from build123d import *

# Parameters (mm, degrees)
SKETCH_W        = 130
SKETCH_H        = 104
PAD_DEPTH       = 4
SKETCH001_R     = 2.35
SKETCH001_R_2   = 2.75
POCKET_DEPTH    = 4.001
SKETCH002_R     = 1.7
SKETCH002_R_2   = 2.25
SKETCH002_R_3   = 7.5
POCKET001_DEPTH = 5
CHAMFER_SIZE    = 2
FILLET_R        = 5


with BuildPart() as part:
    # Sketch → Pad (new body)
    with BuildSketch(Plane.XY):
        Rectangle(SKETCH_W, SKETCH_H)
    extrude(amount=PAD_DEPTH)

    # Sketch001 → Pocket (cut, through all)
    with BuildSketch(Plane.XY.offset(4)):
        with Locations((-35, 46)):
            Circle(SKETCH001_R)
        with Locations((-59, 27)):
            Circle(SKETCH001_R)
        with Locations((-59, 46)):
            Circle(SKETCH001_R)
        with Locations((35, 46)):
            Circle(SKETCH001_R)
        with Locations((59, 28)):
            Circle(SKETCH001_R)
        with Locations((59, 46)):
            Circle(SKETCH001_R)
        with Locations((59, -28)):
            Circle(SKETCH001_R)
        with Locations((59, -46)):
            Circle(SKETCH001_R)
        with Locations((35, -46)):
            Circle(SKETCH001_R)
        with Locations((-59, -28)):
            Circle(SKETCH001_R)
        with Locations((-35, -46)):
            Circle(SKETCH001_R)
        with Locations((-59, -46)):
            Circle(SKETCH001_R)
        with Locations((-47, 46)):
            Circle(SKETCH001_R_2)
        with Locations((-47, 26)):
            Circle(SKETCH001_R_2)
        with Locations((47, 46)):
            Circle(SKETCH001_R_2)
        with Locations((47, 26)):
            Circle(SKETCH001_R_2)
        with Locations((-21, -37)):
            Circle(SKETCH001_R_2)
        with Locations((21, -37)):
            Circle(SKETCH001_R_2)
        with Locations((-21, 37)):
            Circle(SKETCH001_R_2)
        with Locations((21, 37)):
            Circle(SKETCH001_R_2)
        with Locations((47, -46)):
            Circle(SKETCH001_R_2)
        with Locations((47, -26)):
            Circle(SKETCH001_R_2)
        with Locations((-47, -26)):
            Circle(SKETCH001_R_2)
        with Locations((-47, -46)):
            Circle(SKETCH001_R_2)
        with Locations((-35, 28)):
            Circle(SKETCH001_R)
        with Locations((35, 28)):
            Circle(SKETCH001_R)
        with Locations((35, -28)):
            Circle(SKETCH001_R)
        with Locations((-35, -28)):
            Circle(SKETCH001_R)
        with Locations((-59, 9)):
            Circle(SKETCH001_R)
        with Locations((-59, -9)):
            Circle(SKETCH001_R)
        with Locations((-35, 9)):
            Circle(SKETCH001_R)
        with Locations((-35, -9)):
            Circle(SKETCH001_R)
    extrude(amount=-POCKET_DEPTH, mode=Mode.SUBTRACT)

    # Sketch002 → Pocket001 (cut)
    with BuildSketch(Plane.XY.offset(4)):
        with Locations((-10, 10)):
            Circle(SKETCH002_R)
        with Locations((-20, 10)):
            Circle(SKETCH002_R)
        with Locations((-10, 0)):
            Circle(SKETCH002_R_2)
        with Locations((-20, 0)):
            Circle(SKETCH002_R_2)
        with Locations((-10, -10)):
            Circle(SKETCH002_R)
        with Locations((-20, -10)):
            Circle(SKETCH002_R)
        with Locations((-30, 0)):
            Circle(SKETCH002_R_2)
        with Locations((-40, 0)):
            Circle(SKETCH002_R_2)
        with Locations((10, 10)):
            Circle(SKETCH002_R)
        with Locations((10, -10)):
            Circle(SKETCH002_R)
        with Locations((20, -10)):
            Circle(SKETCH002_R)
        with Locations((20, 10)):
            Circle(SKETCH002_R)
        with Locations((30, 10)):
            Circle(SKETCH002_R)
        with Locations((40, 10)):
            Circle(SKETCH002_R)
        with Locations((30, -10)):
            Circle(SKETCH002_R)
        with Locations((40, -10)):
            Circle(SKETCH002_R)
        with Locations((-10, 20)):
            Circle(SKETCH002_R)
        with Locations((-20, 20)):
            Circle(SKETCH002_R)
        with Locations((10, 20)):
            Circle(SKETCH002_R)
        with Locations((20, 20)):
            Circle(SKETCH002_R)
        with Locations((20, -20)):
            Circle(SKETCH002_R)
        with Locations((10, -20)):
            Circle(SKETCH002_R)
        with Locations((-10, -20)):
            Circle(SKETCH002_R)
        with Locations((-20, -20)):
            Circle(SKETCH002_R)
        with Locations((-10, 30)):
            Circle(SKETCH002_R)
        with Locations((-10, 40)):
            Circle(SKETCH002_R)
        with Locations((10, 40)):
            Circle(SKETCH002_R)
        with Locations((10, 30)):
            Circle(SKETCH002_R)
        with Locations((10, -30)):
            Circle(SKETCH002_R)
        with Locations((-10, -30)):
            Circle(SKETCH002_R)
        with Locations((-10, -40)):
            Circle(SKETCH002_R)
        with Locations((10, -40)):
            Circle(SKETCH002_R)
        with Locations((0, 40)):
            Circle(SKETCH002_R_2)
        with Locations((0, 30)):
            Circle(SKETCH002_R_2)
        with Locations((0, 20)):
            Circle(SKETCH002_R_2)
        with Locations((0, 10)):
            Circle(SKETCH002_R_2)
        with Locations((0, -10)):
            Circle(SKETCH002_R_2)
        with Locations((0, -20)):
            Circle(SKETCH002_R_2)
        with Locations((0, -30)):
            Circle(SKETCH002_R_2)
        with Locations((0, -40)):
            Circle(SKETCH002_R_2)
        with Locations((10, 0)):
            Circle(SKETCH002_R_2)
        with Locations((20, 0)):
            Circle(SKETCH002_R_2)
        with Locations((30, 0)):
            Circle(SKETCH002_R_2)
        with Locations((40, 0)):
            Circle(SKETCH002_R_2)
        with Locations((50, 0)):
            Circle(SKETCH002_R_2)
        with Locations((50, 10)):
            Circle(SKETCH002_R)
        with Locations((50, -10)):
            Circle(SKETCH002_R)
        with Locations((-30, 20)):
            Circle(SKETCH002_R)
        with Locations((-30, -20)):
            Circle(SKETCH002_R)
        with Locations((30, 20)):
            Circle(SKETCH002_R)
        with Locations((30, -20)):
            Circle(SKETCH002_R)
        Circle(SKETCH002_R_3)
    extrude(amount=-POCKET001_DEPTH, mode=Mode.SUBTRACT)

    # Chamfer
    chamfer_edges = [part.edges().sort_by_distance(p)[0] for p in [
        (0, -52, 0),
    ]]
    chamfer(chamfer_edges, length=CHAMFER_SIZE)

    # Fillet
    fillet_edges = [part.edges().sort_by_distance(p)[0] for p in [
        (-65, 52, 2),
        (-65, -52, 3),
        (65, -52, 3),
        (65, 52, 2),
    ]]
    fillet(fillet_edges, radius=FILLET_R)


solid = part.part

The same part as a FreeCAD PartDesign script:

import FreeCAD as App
import Part
import Sketcher
from FreeCAD import Vector
Q = App.Units.Quantity


def edges_at(feature, points):
    """Names of the edges that pass closest to the given points."""
    edges = feature.Shape.Edges
    near = lambda p: min(range(len(edges)), key=lambda i: edges[i].distToShape(Part.Vertex(*p))[0])
    return sorted({f"Edge{near(p) + 1}" for p in points})


def add_polygon(sketch, points):
    """Adds a closed chain of lines whose ends are joined by coincident constraints."""
    first, n = sketch.GeometryCount, len(points)
    for a, b in zip(points, points[1:] + points[:1]):
        sketch.addGeometry(Part.LineSegment(App.Vector(*a, 0), App.Vector(*b, 0)), False)
    for i in range(n):
        sketch.addConstraint(Sketcher.Constraint("Coincident", first + i, 2, first + (i + 1) % n, 1))

doc = App.newDocument("Part")
body = doc.addObject("PartDesign::Body", "Body")

sketch1 = doc.addObject("Sketcher::SketchObject", "Sketch")
body.addObject(sketch1)
sketch1.AttachmentSupport = (doc.XY_Plane, [""])
sketch1.MapMode = "FlatFace"
add_polygon(sketch1, [(-65, 52), (-65, -52), (65, -52), (65, 52)])
sketch1.addConstraint([
    Sketcher.Constraint("Vertical", 0),
    Sketcher.Constraint("Horizontal", 1),
    Sketcher.Constraint("Vertical", 2),
    Sketcher.Constraint("Horizontal", 3),
    Sketcher.Constraint("Symmetric", 0, 2, 2, 2, -1, 1),
    Sketcher.Constraint("DistanceX", 1, 1, 1, 2, Q("130 mm")),
    Sketcher.Constraint("DistanceY", 0, 2, 0, 1, Q("104 mm")),
])
pad1 = doc.addObject("PartDesign::Pad", "Pad")
body.addObject(pad1)
pad1.Profile = sketch1
pad1.Length = 4

sketch2 = doc.addObject("Sketcher::SketchObject", "Sketch001")
body.addObject(sketch2)
sketch2.AttachmentSupport = (doc.XY_Plane, [""])
sketch2.MapMode = "FlatFace"
sketch2.AttachmentOffset = App.Placement(Vector(0, 0, 4), App.Rotation())
sketch2.addGeometry([
    Part.Circle(Vector(-35, 46, 0), Vector(0, 0, 1), 2.4),
    Part.Circle(Vector(-59, 27, 0), Vector(0, 0, 1), 2.4),
    Part.Circle(Vector(-59, 46, 0), Vector(0, 0, 1), 2.4),
    Part.Circle(Vector(35, 46, 0), Vector(0, 0, 1), 2.4),
    Part.Circle(Vector(59, 28, 0), Vector(0, 0, 1), 2.4),
    Part.Circle(Vector(59, 46, 0), Vector(0, 0, 1), 2.4),
    Part.Circle(Vector(59, -28, 0), Vector(0, 0, 1), 2.4),
    Part.Circle(Vector(59, -46, 0), Vector(0, 0, 1), 2.4),
    Part.Circle(Vector(35, -46, 0), Vector(0, 0, 1), 2.4),
    Part.Circle(Vector(-59, -28, 0), Vector(0, 0, 1), 2.4),
    Part.Circle(Vector(-35, -46, 0), Vector(0, 0, 1), 2.4),
    Part.Circle(Vector(-59, -46, 0), Vector(0, 0, 1), 2.4),
    Part.Circle(Vector(-47, 46, 0), Vector(0, 0, 1), 2.8),
    Part.Circle(Vector(-47, 26, 0), Vector(0, 0, 1), 2.8),
    Part.Circle(Vector(47, 46, 0), Vector(0, 0, 1), 2.8),
    Part.Circle(Vector(47, 26, 0), Vector(0, 0, 1), 2.8),
    Part.Circle(Vector(-21, -37, 0), Vector(0, 0, 1), 2.8),
    Part.Circle(Vector(21, -37, 0), Vector(0, 0, 1), 2.8),
    Part.Circle(Vector(-21, 37, 0), Vector(0, 0, 1), 2.8),
    Part.Circle(Vector(21, 37, 0), Vector(0, 0, 1), 2.8),
    Part.Circle(Vector(47, -46, 0), Vector(0, 0, 1), 2.8),
    Part.Circle(Vector(47, -26, 0), Vector(0, 0, 1), 2.8),
    Part.Circle(Vector(-47, -26, 0), Vector(0, 0, 1), 2.8),
    Part.Circle(Vector(-47, -46, 0), Vector(0, 0, 1), 2.8),
    Part.Circle(Vector(-35, 28, 0), Vector(0, 0, 1), 2.4),
    Part.Circle(Vector(35, 28, 0), Vector(0, 0, 1), 2.4),
    Part.Circle(Vector(35, -28, 0), Vector(0, 0, 1), 2.4),
    Part.Circle(Vector(-35, -28, 0), Vector(0, 0, 1), 2.4),
    Part.Circle(Vector(-59, 9, 0), Vector(0, 0, 1), 2.4),
    Part.Circle(Vector(-59, -9, 0), Vector(0, 0, 1), 2.4),
    Part.Circle(Vector(-35, 9, 0), Vector(0, 0, 1), 2.4),
    Part.Circle(Vector(-35, -9, 0), Vector(0, 0, 1), 2.4),
], False)
sketch2.addConstraint([
    Sketcher.Constraint("Equal", 0, 1),
    Sketcher.Constraint("Equal", 1, 2),
    Sketcher.Constraint("Equal", 2, 3),
    Sketcher.Constraint("Equal", 3, 4),
    Sketcher.Constraint("Equal", 4, 5),
    Sketcher.Constraint("Equal", 5, 6),
    Sketcher.Constraint("Equal", 6, 7),
    Sketcher.Constraint("Equal", 7, 8),
    Sketcher.Constraint("Equal", 8, 9),
    Sketcher.Constraint("Equal", 9, 10),
    Sketcher.Constraint("Equal", 10, 11),
    Sketcher.Constraint("Equal", 12, 13),
    Sketcher.Constraint("Equal", 13, 14),
    Sketcher.Constraint("Equal", 14, 15),
    Sketcher.Constraint("Equal", 15, 16),
    Sketcher.Constraint("Equal", 16, 17),
    Sketcher.Constraint("Equal", 17, 18),
    Sketcher.Constraint("Equal", 18, 19),
    Sketcher.Constraint("Equal", 19, 20),
    Sketcher.Constraint("Equal", 20, 21),
    Sketcher.Constraint("Equal", 21, 22),
    Sketcher.Constraint("Equal", 22, 23),
    Sketcher.Constraint("Equal", 11, 24),
    Sketcher.Constraint("Equal", 24, 25),
    Sketcher.Constraint("Equal", 25, 26),
    Sketcher.Constraint("Equal", 26, 27),
    Sketcher.Constraint("Equal", 27, 28),
    Sketcher.Constraint("Equal", 28, 29),
    Sketcher.Constraint("Equal", 29, 30),
    Sketcher.Constraint("Equal", 30, 31),
    Sketcher.Constraint("Symmetric", 2, 3, 7, 3, -1, 1),
    Sketcher.Constraint("Symmetric", 0, 3, 8, 3, -1, 1),
    Sketcher.Constraint("Symmetric", 4, 3, 9, 3, -1, 1),
    Sketcher.Constraint("Symmetric", 3, 3, 10, 3, -1, 1),
    Sketcher.Constraint("Symmetric", 5, 3, 11, 3, -1, 1),
    Sketcher.Constraint("Symmetric", 17, 3, 18, 3, -1, 1),
    Sketcher.Constraint("Symmetric", 16, 3, 19, 3, -1, 1),
    Sketcher.Constraint("Symmetric", 12, 3, 20, 3, -1, 1),
    Sketcher.Constraint("Symmetric", 13, 3, 21, 3, -1, 1),
    Sketcher.Constraint("Symmetric", 15, 3, 22, 3, -1, 1),
    Sketcher.Constraint("Symmetric", 14, 3, 23, 3, -1, 1),
    Sketcher.Constraint("Symmetric", 24, 3, 26, 3, -1, 1),
    Sketcher.Constraint("Symmetric", 25, 3, 27, 3, -1, 1),
    Sketcher.Constraint("Symmetric", 0, 3, 3, 3, -2),
    Sketcher.Constraint("Symmetric", 2, 3, 5, 3, -2),
    Sketcher.Constraint("Symmetric", 6, 3, 9, 3, -2),
    Sketcher.Constraint("Symmetric", 12, 3, 14, 3, -2),
    Sketcher.Constraint("Symmetric", 13, 3, 15, 3, -2),
    Sketcher.Constraint("Symmetric", 16, 3, 17, 3, -2),
    Sketcher.Constraint("Symmetric", 24, 3, 25, 3, -2),
    Sketcher.Constraint("Symmetric", 28, 3, 29, 3, -1),
    Sketcher.Constraint("Symmetric", 30, 3, 31, 3, -1),
    Sketcher.Constraint("Horizontal", 0, 3, 2, 3),
    Sketcher.Constraint("Horizontal", 5, 3, 12, 3),
    Sketcher.Constraint("Horizontal", 4, 3, 24, 3),
    Sketcher.Constraint("Horizontal", 28, 3, 30, 3),
    Sketcher.Constraint("Vertical", 1, 3, 2, 3),
    Sketcher.Constraint("Vertical", 4, 3, 5, 3),
    Sketcher.Constraint("Vertical", 12, 3, 13, 3),
    Sketcher.Constraint("Vertical", 10, 3, 24, 3),
    Sketcher.Constraint("Vertical", 11, 3, 28, 3),
    Sketcher.Constraint("Vertical", 27, 3, 30, 3),
    Sketcher.Constraint("Diameter", 0, Q("4.7 mm")),
    Sketcher.Constraint("Diameter", 12, Q("5.5 mm")),
    Sketcher.Constraint("DistanceX", 0, 3, -1, 1, Q("35 mm")),
    Sketcher.Constraint("DistanceY", -1, 1, 0, 3, Q("46 mm")),
    Sketcher.Constraint("DistanceX", 1, 3, -1, 1, Q("59 mm")),
    Sketcher.Constraint("DistanceY", -1, 1, 1, 3, Q("27 mm")),
    Sketcher.Constraint("DistanceY", -1, 1, 4, 3, Q("28 mm")),
    Sketcher.Constraint("DistanceX", 12, 3, -1, 1, Q("47 mm")),
    Sketcher.Constraint("DistanceY", -1, 1, 13, 3, Q("26 mm")),
    Sketcher.Constraint("DistanceX", 16, 3, -1, 1, Q("21 mm")),
    Sketcher.Constraint("DistanceY", 16, 3, -1, 1, Q("37 mm")),
    Sketcher.Constraint("DistanceY", -1, 1, 28, 3, Q("9 mm")),
])
pocket1 = doc.addObject("PartDesign::Pocket", "Pocket")
body.addObject(pocket1)
pocket1.Profile = sketch2
pocket1.Type = "ThroughAll"

sketch3 = doc.addObject("Sketcher::SketchObject", "Sketch002")
body.addObject(sketch3)
sketch3.AttachmentSupport = (doc.XY_Plane, [""])
sketch3.MapMode = "FlatFace"
sketch3.AttachmentOffset = App.Placement(Vector(0, 0, 4), App.Rotation())
sketch3.addGeometry([
    Part.Circle(Vector(-10, 10, 0), Vector(0, 0, 1), 1.7),
    Part.Circle(Vector(-20, 10, 0), Vector(0, 0, 1), 1.7),
    Part.Circle(Vector(-10, 0, 0), Vector(0, 0, 1), 2.2),
    Part.Circle(Vector(-20, 0, 0), Vector(0, 0, 1), 2.2),
    Part.Circle(Vector(-10, -10, 0), Vector(0, 0, 1), 1.7),
    Part.Circle(Vector(-20, -10, 0), Vector(0, 0, 1), 1.7),
    Part.Circle(Vector(-30, 0, 0), Vector(0, 0, 1), 2.2),
    Part.Circle(Vector(-40, 0, 0), Vector(0, 0, 1), 2.2),
    Part.Circle(Vector(10, 10, 0), Vector(0, 0, 1), 1.7),
    Part.Circle(Vector(10, -10, 0), Vector(0, 0, 1), 1.7),
    Part.Circle(Vector(20, -10, 0), Vector(0, 0, 1), 1.7),
    Part.Circle(Vector(20, 10, 0), Vector(0, 0, 1), 1.7),
    Part.Circle(Vector(30, 10, 0), Vector(0, 0, 1), 1.7),
    Part.Circle(Vector(40, 10, 0), Vector(0, 0, 1), 1.7),
    Part.Circle(Vector(30, -10, 0), Vector(0, 0, 1), 1.7),
    Part.Circle(Vector(40, -10, 0), Vector(0, 0, 1), 1.7),
    Part.Circle(Vector(-10, 20, 0), Vector(0, 0, 1), 1.7),
    Part.Circle(Vector(-20, 20, 0), Vector(0, 0, 1), 1.7),
    Part.Circle(Vector(10, 20, 0), Vector(0, 0, 1), 1.7),
    Part.Circle(Vector(20, 20, 0), Vector(0, 0, 1), 1.7),
    Part.Circle(Vector(20, -20, 0), Vector(0, 0, 1), 1.7),
    Part.Circle(Vector(10, -20, 0), Vector(0, 0, 1), 1.7),
    Part.Circle(Vector(-10, -20, 0), Vector(0, 0, 1), 1.7),
    Part.Circle(Vector(-20, -20, 0), Vector(0, 0, 1), 1.7),
    Part.Circle(Vector(-10, 30, 0), Vector(0, 0, 1), 1.7),
    Part.Circle(Vector(-10, 40, 0), Vector(0, 0, 1), 1.7),
    Part.Circle(Vector(10, 40, 0), Vector(0, 0, 1), 1.7),
    Part.Circle(Vector(10, 30, 0), Vector(0, 0, 1), 1.7),
    Part.Circle(Vector(10, -30, 0), Vector(0, 0, 1), 1.7),
    Part.Circle(Vector(-10, -30, 0), Vector(0, 0, 1), 1.7),
    Part.Circle(Vector(-10, -40, 0), Vector(0, 0, 1), 1.7),
    Part.Circle(Vector(10, -40, 0), Vector(0, 0, 1), 1.7),
    Part.Circle(Vector(0, 40, 0), Vector(0, 0, 1), 2.2),
    Part.Circle(Vector(0, 30, 0), Vector(0, 0, 1), 2.2),
    Part.Circle(Vector(0, 20, 0), Vector(0, 0, 1), 2.2),
    Part.Circle(Vector(0, 10, 0), Vector(0, 0, 1), 2.2),
    Part.Circle(Vector(0, -10, 0), Vector(0, 0, 1), 2.2),
    Part.Circle(Vector(0, -20, 0), Vector(0, 0, 1), 2.2),
    Part.Circle(Vector(0, -30, 0), Vector(0, 0, 1), 2.2),
    Part.Circle(Vector(0, -40, 0), Vector(0, 0, 1), 2.2),
    Part.Circle(Vector(10, 0, 0), Vector(0, 0, 1), 2.2),
    Part.Circle(Vector(20, 0, 0), Vector(0, 0, 1), 2.2),
    Part.Circle(Vector(30, 0, 0), Vector(0, 0, 1), 2.2),
    Part.Circle(Vector(40, 0, 0), Vector(0, 0, 1), 2.2),
    Part.Circle(Vector(50, 0, 0), Vector(0, 0, 1), 2.2),
    Part.Circle(Vector(50, 10, 0), Vector(0, 0, 1), 1.7),
    Part.Circle(Vector(50, -10, 0), Vector(0, 0, 1), 1.7),
    Part.Circle(Vector(-30, 20, 0), Vector(0, 0, 1), 1.7),
    Part.Circle(Vector(-30, -20, 0), Vector(0, 0, 1), 1.7),
    Part.Circle(Vector(30, 20, 0), Vector(0, 0, 1), 1.7),
    Part.Circle(Vector(30, -20, 0), Vector(0, 0, 1), 1.7),
    Part.Circle(Vector(0, 0, 0), Vector(0, 0, 1), 7.5),
], False)
sketch3.addConstraint([
    Sketcher.Constraint("Coincident", 51, 3, -1, 1),
    Sketcher.Constraint("Equal", 0, 1),
    Sketcher.Constraint("Equal", 2, 3),
    Sketcher.Constraint("Equal", 1, 4),
    Sketcher.Constraint("Equal", 4, 5),
    Sketcher.Constraint("Equal", 3, 6),
    Sketcher.Constraint("Equal", 6, 7),
    Sketcher.Constraint("Equal", 5, 8),
    Sketcher.Constraint("Equal", 8, 9),
    Sketcher.Constraint("Equal", 9, 10),
    Sketcher.Constraint("Equal", 10, 11),
    Sketcher.Constraint("Equal", 11, 12),
    Sketcher.Constraint("Equal", 12, 13),
    Sketcher.Constraint("Equal", 13, 14),
    Sketcher.Constraint("Equal", 14, 15),
    Sketcher.Constraint("Equal", 15, 16),
    Sketcher.Constraint("Equal", 16, 17),
    Sketcher.Constraint("Equal", 17, 18),
    Sketcher.Constraint("Equal", 18, 19),
    Sketcher.Constraint("Equal", 19, 20),
    Sketcher.Constraint("Equal", 20, 21),
    Sketcher.Constraint("Equal", 21, 22),
    Sketcher.Constraint("Equal", 22, 23),
    Sketcher.Constraint("Equal", 23, 24),
    Sketcher.Constraint("Equal", 24, 25),
    Sketcher.Constraint("Equal", 25, 26),
    Sketcher.Constraint("Equal", 26, 27),
    Sketcher.Constraint("Equal", 27, 28),
    Sketcher.Constraint("Equal", 28, 29),
    Sketcher.Constraint("Equal", 29, 30),
    Sketcher.Constraint("Equal", 30, 31),
    Sketcher.Constraint("Equal", 7, 32),
    Sketcher.Constraint("Equal", 32, 33),
    Sketcher.Constraint("Equal", 33, 34),
    Sketcher.Constraint("Equal", 34, 35),
    Sketcher.Constraint("Equal", 35, 36),
    Sketcher.Constraint("Equal", 36, 37),
    Sketcher.Constraint("Equal", 37, 38),
    Sketcher.Constraint("Equal", 38, 39),
    Sketcher.Constraint("Equal", 39, 40),
    Sketcher.Constraint("Equal", 40, 41),
    Sketcher.Constraint("Equal", 41, 42),
    Sketcher.Constraint("Equal", 42, 43),
    Sketcher.Constraint("Equal", 43, 44),
    Sketcher.Constraint("Equal", 31, 45),
    Sketcher.Constraint("Equal", 45, 46),
    Sketcher.Constraint("Equal", 46, 47),
    Sketcher.Constraint("Equal", 47, 48),
    Sketcher.Constraint("Equal", 48, 49),
    Sketcher.Constraint("Equal", 49, 50),
    Sketcher.Constraint("Symmetric", 4, 3, 8, 3, -1, 1),
    Sketcher.Constraint("Symmetric", 0, 3, 9, 3, -1, 1),
    Sketcher.Constraint("Symmetric", 1, 3, 10, 3, -1, 1),
    Sketcher.Constraint("Symmetric", 5, 3, 11, 3, -1, 1),
    Sketcher.Constraint("Symmetric", 17, 3, 20, 3, -1, 1),
    Sketcher.Constraint("Symmetric", 16, 3, 21, 3, -1, 1),
    Sketcher.Constraint("Symmetric", 18, 3, 22, 3, -1, 1),
    Sketcher.Constraint("Symmetric", 19, 3, 23, 3, -1, 1),
    Sketcher.Constraint("Symmetric", 24, 3, 28, 3, -1, 1),
    Sketcher.Constraint("Symmetric", 27, 3, 29, 3, -1, 1),
    Sketcher.Constraint("Symmetric", 26, 3, 30, 3, -1, 1),
    Sketcher.Constraint("Symmetric", 25, 3, 31, 3, -1, 1),
    Sketcher.Constraint("Symmetric", 35, 3, 36, 3, -1, 1),
    Sketcher.Constraint("Symmetric", 34, 3, 37, 3, -1, 1),
    Sketcher.Constraint("Symmetric", 33, 3, 38, 3, -1, 1),
    Sketcher.Constraint("Symmetric", 32, 3, 39, 3, -1, 1),
    Sketcher.Constraint("Symmetric", 2, 3, 40, 3, -1, 1),
    Sketcher.Constraint("Symmetric", 3, 3, 41, 3, -1, 1),
    Sketcher.Constraint("Symmetric", 6, 3, 42, 3, -1, 1),
    Sketcher.Constraint("Symmetric", 7, 3, 43, 3, -1, 1),
    Sketcher.Constraint("Symmetric", 48, 3, 49, 3, -1, 1),
    Sketcher.Constraint("Symmetric", 47, 3, 50, 3, -1, 1),
    Sketcher.Constraint("Symmetric", 0, 3, 8, 3, -2),
    Sketcher.Constraint("Symmetric", 5, 3, 10, 3, -2),
    Sketcher.Constraint("Symmetric", 16, 3, 18, 3, -2),
    Sketcher.Constraint("Symmetric", 17, 3, 19, 3, -2),
    Sketcher.Constraint("Symmetric", 25, 3, 26, 3, -2),
    Sketcher.Constraint("Symmetric", 24, 3, 27, 3, -2),
    Sketcher.Constraint("Symmetric", 47, 3, 49, 3, -2),
    Sketcher.Constraint("Symmetric", 12, 3, 14, 3, -1),
    Sketcher.Constraint("Symmetric", 13, 3, 15, 3, -1),
    Sketcher.Constraint("Symmetric", 45, 3, 46, 3, -1),
    Sketcher.Constraint("PointOnObject", 2, 3, -1),
    Sketcher.Constraint("PointOnObject", 3, 3, -1),
    Sketcher.Constraint("PointOnObject", 6, 3, -1),
    Sketcher.Constraint("PointOnObject", 7, 3, -1),
    Sketcher.Constraint("PointOnObject", 32, 3, -2),
    Sketcher.Constraint("PointOnObject", 33, 3, -2),
    Sketcher.Constraint("PointOnObject", 34, 3, -2),
    Sketcher.Constraint("PointOnObject", 35, 3, -2),
    Sketcher.Constraint("PointOnObject", 44, 3, -1),
    Sketcher.Constraint("Horizontal", 0, 3, 1, 3),
    Sketcher.Constraint("Horizontal", 11, 3, 12, 3),
    Sketcher.Constraint("Horizontal", 12, 3, 13, 3),
    Sketcher.Constraint("Horizontal", 16, 3, 17, 3),
    Sketcher.Constraint("Horizontal", 26, 3, 32, 3),
    Sketcher.Constraint("Horizontal", 27, 3, 33, 3),
    Sketcher.Constraint("Horizontal", 19, 3, 34, 3),
    Sketcher.Constraint("Horizontal", 13, 3, 35, 3),
    Sketcher.Constraint("Horizontal", 35, 3, 45, 3),
    Sketcher.Constraint("Horizontal", 34, 3, 47, 3),
    Sketcher.Constraint("Vertical", 0, 3, 2, 3),
    Sketcher.Constraint("Vertical", 1, 3, 3, 3),
    Sketcher.Constraint("Vertical", 4, 3, 16, 3),
    Sketcher.Constraint("Vertical", 5, 3, 17, 3),
    Sketcher.Constraint("Vertical", 22, 3, 24, 3),
    Sketcher.Constraint("Vertical", 24, 3, 25, 3),
    Sketcher.Constraint("Vertical", 14, 3, 42, 3),
    Sketcher.Constraint("Vertical", 15, 3, 43, 3),
    Sketcher.Constraint("Vertical", 44, 3, 45, 3),
    Sketcher.Constraint("Vertical", 6, 3, 47, 3),
    Sketcher.Constraint("Diameter", 51, Q("15 mm")),
    Sketcher.Constraint("Diameter", 0, Q("3.4 mm")),
    Sketcher.Constraint("Diameter", 2, Q("4.5 mm")),
    Sketcher.Constraint("DistanceX", 0, 3, -1, 1, Q("10 mm")),
    Sketcher.Constraint("DistanceY", -1, 1, 0, 3, Q("10 mm")),
    Sketcher.Constraint("DistanceX", 1, 3, -1, 1, Q("20 mm")),
    Sketcher.Constraint("DistanceX", 6, 3, -1, 1, Q("30 mm")),
    Sketcher.Constraint("DistanceX", 7, 3, -1, 1, Q("40 mm")),
    Sketcher.Constraint("DistanceY", -1, 1, 16, 3, Q("20 mm")),
    Sketcher.Constraint("DistanceY", -1, 1, 24, 3, Q("30 mm")),
    Sketcher.Constraint("DistanceY", -1, 1, 25, 3, Q("40 mm")),
    Sketcher.Constraint("DistanceX", -1, 1, 44, 3, Q("50 mm")),
])
pocket2 = doc.addObject("PartDesign::Pocket", "Pocket001")
body.addObject(pocket2)
pocket2.Profile = sketch3
pocket2.Length = 5
doc.recompute()

chamfer = doc.addObject("PartDesign::Chamfer", "Chamfer")
body.addObject(chamfer)
chamfer.Base = (pocket2, edges_at(pocket2, [(0, -52, 0)]))
chamfer.Size = 2
doc.recompute()

fillet = doc.addObject("PartDesign::Fillet", "Fillet")
body.addObject(fillet)
fillet.Base = (chamfer, edges_at(chamfer, [
    (-65, 52, 2),
    (-65, -52, 3),
    (65, -52, 3),
    (65, 52, 2),
]))
fillet.Radius = 5

doc.recompute()
